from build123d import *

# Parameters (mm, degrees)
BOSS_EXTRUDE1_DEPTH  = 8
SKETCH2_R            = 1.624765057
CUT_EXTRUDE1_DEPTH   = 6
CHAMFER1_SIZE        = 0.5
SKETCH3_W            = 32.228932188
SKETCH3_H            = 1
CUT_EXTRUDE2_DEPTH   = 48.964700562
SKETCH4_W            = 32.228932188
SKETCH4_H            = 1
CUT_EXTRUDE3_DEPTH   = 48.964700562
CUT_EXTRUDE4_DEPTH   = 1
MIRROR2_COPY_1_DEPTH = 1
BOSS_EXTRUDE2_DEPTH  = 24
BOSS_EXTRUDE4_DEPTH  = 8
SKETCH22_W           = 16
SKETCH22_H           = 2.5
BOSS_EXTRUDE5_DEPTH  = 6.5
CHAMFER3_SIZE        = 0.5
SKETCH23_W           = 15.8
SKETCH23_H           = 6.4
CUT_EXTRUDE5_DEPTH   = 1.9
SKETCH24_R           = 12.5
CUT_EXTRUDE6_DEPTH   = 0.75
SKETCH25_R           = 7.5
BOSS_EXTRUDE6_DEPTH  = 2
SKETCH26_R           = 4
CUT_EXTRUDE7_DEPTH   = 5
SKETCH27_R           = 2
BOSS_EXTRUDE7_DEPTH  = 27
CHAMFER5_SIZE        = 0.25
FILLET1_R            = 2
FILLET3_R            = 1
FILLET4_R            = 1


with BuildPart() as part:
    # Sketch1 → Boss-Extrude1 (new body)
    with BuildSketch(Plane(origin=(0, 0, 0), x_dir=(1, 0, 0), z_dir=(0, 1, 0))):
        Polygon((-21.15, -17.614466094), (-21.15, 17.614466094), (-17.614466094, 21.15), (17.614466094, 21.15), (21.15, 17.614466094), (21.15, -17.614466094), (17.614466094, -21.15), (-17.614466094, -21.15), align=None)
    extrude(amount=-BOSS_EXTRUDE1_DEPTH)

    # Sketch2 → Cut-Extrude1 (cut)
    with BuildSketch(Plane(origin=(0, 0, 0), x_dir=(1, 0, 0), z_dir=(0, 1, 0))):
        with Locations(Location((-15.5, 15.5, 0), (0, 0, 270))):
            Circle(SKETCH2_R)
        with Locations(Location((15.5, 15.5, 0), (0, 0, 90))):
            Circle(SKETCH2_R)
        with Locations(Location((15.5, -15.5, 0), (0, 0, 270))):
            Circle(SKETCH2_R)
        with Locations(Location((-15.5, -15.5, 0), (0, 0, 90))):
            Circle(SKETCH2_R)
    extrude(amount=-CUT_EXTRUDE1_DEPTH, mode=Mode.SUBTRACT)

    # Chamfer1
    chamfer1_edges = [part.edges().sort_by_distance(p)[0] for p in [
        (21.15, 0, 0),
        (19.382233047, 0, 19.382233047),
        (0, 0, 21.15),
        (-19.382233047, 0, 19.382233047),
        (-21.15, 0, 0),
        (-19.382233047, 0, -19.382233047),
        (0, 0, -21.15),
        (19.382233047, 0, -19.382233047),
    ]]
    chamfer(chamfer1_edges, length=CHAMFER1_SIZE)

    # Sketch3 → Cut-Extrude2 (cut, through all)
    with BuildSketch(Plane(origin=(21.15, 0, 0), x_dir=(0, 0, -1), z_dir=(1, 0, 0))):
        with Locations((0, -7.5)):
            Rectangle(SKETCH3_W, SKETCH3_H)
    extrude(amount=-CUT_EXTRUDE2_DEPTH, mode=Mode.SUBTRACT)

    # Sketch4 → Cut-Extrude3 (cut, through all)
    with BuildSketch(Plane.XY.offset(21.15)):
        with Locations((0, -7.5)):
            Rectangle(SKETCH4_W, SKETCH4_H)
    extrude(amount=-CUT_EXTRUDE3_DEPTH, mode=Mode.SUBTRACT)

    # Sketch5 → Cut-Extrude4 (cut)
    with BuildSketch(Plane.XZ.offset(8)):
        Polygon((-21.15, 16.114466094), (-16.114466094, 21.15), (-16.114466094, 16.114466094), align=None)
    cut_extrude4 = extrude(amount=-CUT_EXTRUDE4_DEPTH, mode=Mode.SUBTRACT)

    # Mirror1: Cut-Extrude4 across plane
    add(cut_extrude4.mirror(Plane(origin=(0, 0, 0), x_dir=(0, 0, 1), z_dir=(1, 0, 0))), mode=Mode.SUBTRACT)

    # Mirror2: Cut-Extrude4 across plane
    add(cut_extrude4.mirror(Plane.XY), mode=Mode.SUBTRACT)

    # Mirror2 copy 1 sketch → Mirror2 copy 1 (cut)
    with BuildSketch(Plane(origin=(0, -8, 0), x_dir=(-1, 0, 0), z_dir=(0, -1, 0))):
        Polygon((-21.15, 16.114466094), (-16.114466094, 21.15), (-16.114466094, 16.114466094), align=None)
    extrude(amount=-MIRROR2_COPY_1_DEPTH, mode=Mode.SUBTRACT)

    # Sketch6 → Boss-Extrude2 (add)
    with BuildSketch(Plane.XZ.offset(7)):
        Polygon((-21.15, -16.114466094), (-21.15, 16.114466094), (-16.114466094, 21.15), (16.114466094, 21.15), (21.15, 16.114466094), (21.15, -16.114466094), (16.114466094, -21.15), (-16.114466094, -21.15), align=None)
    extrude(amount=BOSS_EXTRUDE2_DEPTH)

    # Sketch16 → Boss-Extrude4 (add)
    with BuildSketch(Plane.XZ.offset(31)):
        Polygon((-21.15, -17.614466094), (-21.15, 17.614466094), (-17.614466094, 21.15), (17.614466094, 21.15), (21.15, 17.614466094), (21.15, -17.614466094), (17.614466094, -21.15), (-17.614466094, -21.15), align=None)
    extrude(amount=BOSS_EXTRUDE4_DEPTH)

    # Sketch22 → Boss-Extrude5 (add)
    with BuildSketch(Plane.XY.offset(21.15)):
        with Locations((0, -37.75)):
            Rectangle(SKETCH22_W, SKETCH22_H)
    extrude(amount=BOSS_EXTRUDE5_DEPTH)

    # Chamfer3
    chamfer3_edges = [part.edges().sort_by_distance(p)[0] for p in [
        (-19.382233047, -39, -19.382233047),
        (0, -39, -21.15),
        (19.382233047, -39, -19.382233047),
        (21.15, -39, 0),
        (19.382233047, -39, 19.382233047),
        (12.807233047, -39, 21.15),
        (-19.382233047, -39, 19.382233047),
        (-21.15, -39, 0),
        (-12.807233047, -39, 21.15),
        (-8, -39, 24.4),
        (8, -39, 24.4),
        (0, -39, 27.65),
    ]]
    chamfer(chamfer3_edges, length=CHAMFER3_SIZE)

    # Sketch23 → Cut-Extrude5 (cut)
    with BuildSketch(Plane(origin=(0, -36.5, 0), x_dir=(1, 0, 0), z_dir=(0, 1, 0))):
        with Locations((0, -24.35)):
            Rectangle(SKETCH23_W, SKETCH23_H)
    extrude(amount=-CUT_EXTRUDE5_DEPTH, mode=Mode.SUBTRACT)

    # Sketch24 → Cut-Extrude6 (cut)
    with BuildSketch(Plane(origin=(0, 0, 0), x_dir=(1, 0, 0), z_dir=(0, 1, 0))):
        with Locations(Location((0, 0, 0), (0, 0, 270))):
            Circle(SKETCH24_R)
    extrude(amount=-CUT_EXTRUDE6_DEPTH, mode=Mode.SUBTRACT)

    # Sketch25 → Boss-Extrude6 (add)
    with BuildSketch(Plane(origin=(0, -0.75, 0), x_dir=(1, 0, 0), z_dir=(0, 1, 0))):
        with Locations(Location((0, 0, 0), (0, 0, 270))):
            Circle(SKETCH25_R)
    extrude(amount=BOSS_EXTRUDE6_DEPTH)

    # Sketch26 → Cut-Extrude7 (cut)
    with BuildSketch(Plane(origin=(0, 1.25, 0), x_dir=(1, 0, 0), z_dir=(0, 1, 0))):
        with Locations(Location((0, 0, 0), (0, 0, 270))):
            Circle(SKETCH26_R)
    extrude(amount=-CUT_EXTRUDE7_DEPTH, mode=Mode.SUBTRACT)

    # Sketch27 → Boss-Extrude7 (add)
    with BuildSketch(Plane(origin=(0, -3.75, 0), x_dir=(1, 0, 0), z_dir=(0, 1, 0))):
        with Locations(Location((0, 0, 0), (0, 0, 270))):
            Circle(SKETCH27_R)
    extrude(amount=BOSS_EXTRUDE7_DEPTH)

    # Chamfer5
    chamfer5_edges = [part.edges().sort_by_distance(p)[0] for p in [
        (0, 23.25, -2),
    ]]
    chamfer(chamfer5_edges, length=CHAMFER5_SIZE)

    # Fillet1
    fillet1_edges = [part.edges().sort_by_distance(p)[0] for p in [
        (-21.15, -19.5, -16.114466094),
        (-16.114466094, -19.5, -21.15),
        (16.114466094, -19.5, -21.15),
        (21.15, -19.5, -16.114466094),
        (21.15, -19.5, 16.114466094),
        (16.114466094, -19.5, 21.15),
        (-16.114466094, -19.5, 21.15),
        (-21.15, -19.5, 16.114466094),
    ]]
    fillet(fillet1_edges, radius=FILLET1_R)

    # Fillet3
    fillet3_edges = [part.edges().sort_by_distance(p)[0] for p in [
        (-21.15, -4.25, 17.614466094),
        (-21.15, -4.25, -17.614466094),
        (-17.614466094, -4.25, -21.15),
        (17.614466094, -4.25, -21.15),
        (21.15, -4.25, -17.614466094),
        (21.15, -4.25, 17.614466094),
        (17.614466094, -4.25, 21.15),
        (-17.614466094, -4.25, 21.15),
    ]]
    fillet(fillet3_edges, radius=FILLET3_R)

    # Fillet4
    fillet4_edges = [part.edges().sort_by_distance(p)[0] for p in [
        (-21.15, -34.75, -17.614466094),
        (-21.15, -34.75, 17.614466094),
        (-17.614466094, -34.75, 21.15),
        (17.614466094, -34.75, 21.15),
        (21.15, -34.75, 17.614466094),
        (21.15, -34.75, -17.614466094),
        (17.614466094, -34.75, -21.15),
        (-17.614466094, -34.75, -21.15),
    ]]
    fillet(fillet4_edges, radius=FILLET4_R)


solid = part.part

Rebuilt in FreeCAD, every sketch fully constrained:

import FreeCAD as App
import Part
import Sketcher

V = App.Vector


def edges_at(feature, points):
    """Names of the edges that pass closest to the given points."""
    edges = feature.Shape.Edges
    near = lambda p: min(range(len(edges)), key=lambda i: edges[i].distToShape(Part.Vertex(*p))[0])
    return sorted({f"Edge{near(p) + 1}" for p in points})


def add_polygon(sketch, points):
    """Adds a closed chain of lines whose ends are joined by coincident constraints."""
    first, n = sketch.GeometryCount, len(points)
    for a, b in zip(points, points[1:] + points[:1]):
        sketch.addGeometry(Part.LineSegment(App.Vector(*a, 0), App.Vector(*b, 0)), False)
    for i in range(n):
        sketch.addConstraint(Sketcher.Constraint("Coincident", first + i, 2, first + (i + 1) % n, 1))

doc = App.newDocument("Part")
body = doc.addObject("PartDesign::Body", "Body")

sketch1 = body.newObject("Sketcher::SketchObject", "Sketch")
sketch1.AttachmentSupport = (doc.getObject("XZ_Plane"), [""])
sketch1.MapMode = "FlatFace"
add_polygon(sketch1, [(-21, -18), (-21, 18), (-18, 21), (18, 21), (21, 18), (21, -18), (18, -21), (-18, -21)])
sketch1.addConstraint([
    Sketcher.Constraint("Vertical", 0),
    Sketcher.Constraint("Horizontal", 2),
    Sketcher.Constraint("Vertical", 4),
    Sketcher.Constraint("Horizontal", 6),
    Sketcher.Constraint("Symmetric", 0, 2, 4, 2, -1, 1),
    Sketcher.Constraint("Symmetric", 1, 2, 5, 2, -1, 1),
    Sketcher.Constraint("Perpendicular", 1, 3),
    Sketcher.Constraint("Perpendicular", 5, 7),
    Sketcher.Constraint("Horizontal", 0, 2, 3, 2),
    Sketcher.Constraint("Horizontal", 4, 2, 7, 2),
    Sketcher.Constraint("Vertical", 2, 2, 5, 2),
    Sketcher.Constraint("Equal", 6, 0),
    Sketcher.Constraint("Distance", 1, 5.0),
    Sketcher.Constraint("DistanceX", 0, 2, 3, 2, 42.3),
])
pad1 = body.newObject("PartDesign::Pad", "Pad")
pad1.Profile = sketch1
pad1.Length = 8

sketch2 = body.newObject("Sketcher::SketchObject", "Sketch001")
sketch2.AttachmentSupport = (doc.getObject("XZ_Plane"), [""])
sketch2.MapMode = "FlatFace"
sketch2.addGeometry([
    Part.Circle(V(-15.5, -15.5, 0), V(0, 0, 1), 1.6),
    Part.Circle(V(15.5, -15.5, 0), V(0, 0, 1), 1.6),
    Part.Circle(V(15.5, 15.5, 0), V(0, 0, 1), 1.6),
    Part.Circle(V(-15.5, 15.5, 0), V(0, 0, 1), 1.6),
], False)
sketch2.addConstraint([
    Sketcher.Constraint("Equal", 0, 1),
    Sketcher.Constraint("Equal", 1, 2),
    Sketcher.Constraint("Equal", 2, 3),
    Sketcher.Constraint("Symmetric", 0, 3, 2, 3, -1, 1),
    Sketcher.Constraint("Symmetric", 1, 3, 3, 3, -1, 1),
    Sketcher.Constraint("Symmetric", 0, 3, 1, 3, -2),
    Sketcher.Constraint("DistanceX", 0, 3, 1, 3, 31.0),
    Sketcher.Constraint("DistanceY", 1, 3, 2, 3, 31.0),
    Sketcher.Constraint("Diameter", 0, 3.24953),
])
pocket1 = body.newObject("PartDesign::Pocket", "Pocket")
pocket1.Profile = sketch2
pocket1.Length = 6
pocket1.Reversed = True
doc.recompute()

chamfer = body.newObject("PartDesign::Chamfer", "Chamfer")
chamfer.Base = (pocket1, edges_at(pocket1, [
    (21.15, 0, 0),
    (19.382, 0, 19.382),
    (0, 0, 21.15),
    (-19.382, 0, 19.382),
    (-21.15, 0, 0),
    (-19.382, 0, -19.382),
    (0, 0, -21.15),
    (19.382, 0, -19.382),
]))
chamfer.Size = 0.5

sketch3 = body.newObject("Sketcher::SketchObject", "Sketch002")
sketch3.AttachmentSupport = (doc.getObject("YZ_Plane"), [""])
sketch3.MapMode = "FlatFace"
sketch3.AttachmentOffset = App.Placement(V(0, 0, 21.15), App.Rotation())
add_polygon(sketch3, [(-7, 16.1), (-8, 16.1), (-8, -16.1), (-7, -16.1)])
sketch3.addConstraint([
    Sketcher.Constraint("Horizontal", 0),
    Sketcher.Constraint("Vertical", 1),
    Sketcher.Constraint("Horizontal", 2),
    Sketcher.Constraint("Vertical", 3),
    Sketcher.Constraint("DistanceX", 0, 2, 0, 1, 1.0),
    Sketcher.Constraint("DistanceX", 0, 2, -1, 1, 8.0),
    Sketcher.Constraint("DistanceY", 1, 2, 1, 1, 32.228932),
    Sketcher.Constraint("DistanceY", -1, 1, 0, 2, 16.114466),
])
pocket2 = body.newObject("PartDesign::Pocket", "Pocket001")
pocket2.Profile = sketch3
pocket2.Type = "ThroughAll"

sketch4 = body.newObject("Sketcher::SketchObject", "Sketch003")
sketch4.AttachmentSupport = (doc.getObject("XY_Plane"), [""])
sketch4.MapMode = "FlatFace"
sketch4.AttachmentOffset = App.Placement(V(0, 0, 21.15), App.Rotation())
add_polygon(sketch4, [(-16.1, -7), (-16.1, -8), (16.1, -8), (16.1, -7)])
sketch4.addConstraint([
    Sketcher.Constraint("Vertical", 0),
    Sketcher.Constraint("Horizontal", 1),
    Sketcher.Constraint("Vertical", 2),
    Sketcher.Constraint("Horizontal", 3),
    Sketcher.Constraint("DistanceY", 0, 2, 0, 1, 1.0),
    Sketcher.Constraint("DistanceY", 0, 2, -1, 1, 8.0),
    Sketcher.Constraint("DistanceX", 1, 1, 1, 2, 32.228932),
    Sketcher.Constraint("DistanceX", 0, 2, -1, 1, 16.114466),
])
pocket3 = body.newObject("PartDesign::Pocket", "Pocket002")
pocket3.Profile = sketch4
pocket3.Type = "ThroughAll"

sketch5 = body.newObject("Sketcher::SketchObject", "Sketch004")
sketch5.AttachmentSupport = (doc.getObject("XZ_Plane"), [""])
sketch5.MapMode = "FlatFace"
sketch5.AttachmentOffset = App.Placement(V(0, 0, 8), App.Rotation())
add_polygon(sketch5, [(-16, 21), (-21, 16), (-16, 16)])
sketch5.addConstraint([
    Sketcher.Constraint("Horizontal", 1),
    Sketcher.Constraint("Vertical", 2),
    Sketcher.Constraint("Equal", 1, 2),
    Sketcher.Constraint("DistanceX", 0, 2, -1, 1, 21.15),
    Sketcher.Constraint("DistanceY", -1, 1, 2, 2, 21.15),
    Sketcher.Constraint("Distance", 0, 7.12132),
])
pocket4 = body.newObject("PartDesign::Pocket", "Pocket003")
pocket4.Profile = sketch5
pocket4.Length = 1
doc.recompute()

mirrored = body.newObject("PartDesign::Mirrored", "Mirrored")
mirrored.Originals = [pocket4]
mirrored.MirrorPlane = (doc.getObject("YZ_Plane"), [""])
body.Tip = mirrored
doc.recompute()

mirrored2 = body.newObject("PartDesign::Mirrored", "Mirrored001")
mirrored2.Originals = [pocket4]
mirrored2.MirrorPlane = (doc.getObject("XY_Plane"), [""])
body.Tip = mirrored2

sketch6 = body.newObject("Sketcher::SketchObject", "Sketch005")
sketch6.AttachmentSupport = (doc.getObject("XZ_Plane"), [""])
sketch6.MapMode = "FlatFace"
sketch6.AttachmentOffset = App.Placement(V(0, 0, 8), App.Rotation())
add_polygon(sketch6, [(16, -21), (21, -16), (16, -16)])
sketch6.addConstraint([
    Sketcher.Constraint("Horizontal", 1),
    Sketcher.Constraint("Vertical", 2),
    Sketcher.Constraint("Equal", 1, 2),
    Sketcher.Constraint("DistanceX", -1, 1, 0, 2, 21.15),
    Sketcher.Constraint("DistanceY", 2, 2, -1, 1, 21.15),
    Sketcher.Constraint("Distance", 0, 7.12132),
])
pocket5 = body.newObject("PartDesign::Pocket", "Pocket004")
pocket5.Profile = sketch6
pocket5.Length = 1

sketch7 = body.newObject("Sketcher::SketchObject", "Sketch006")
sketch7.AttachmentSupport = (doc.getObject("XZ_Plane"), [""])
sketch7.MapMode = "FlatFace"
sketch7.AttachmentOffset = App.Placement(V(0, 0, 7), App.Rotation())
add_polygon(sketch7, [(-21, 16), (-21, -16), (-16, -21), (16, -21), (21, -16), (21, 16), (16, 21), (-16, 21)])
sketch7.addConstraint([
    Sketcher.Constraint("Vertical", 0),
    Sketcher.Constraint("Horizontal", 2),
    Sketcher.Constraint("Vertical", 4),
    Sketcher.Constraint("Horizontal", 6),
    Sketcher.Constraint("Symmetric", 0, 2, 4, 2, -1, 1),
    Sketcher.Constraint("Symmetric", 1, 2, 5, 2, -1, 1),
    Sketcher.Constraint("Perpendicular", 1, 3),
    Sketcher.Constraint("Perpendicular", 5, 7),
    Sketcher.Constraint("Horizontal", 0, 2, 3, 2),
    Sketcher.Constraint("Horizontal", 4, 2, 7, 2),
    Sketcher.Constraint("Vertical", 2, 2, 5, 2),
    Sketcher.Constraint("Equal", 6, 0),
    Sketcher.Constraint("DistanceX", 0, 2, 3, 2, 42.3),
    Sketcher.Constraint("Distance", 1, 7.12132),
])
pad2 = body.newObject("PartDesign::Pad", "Pad001")
pad2.Profile = sketch7
pad2.Length = 24

sketch8 = body.newObject("Sketcher::SketchObject", "Sketch007")
sketch8.AttachmentSupport = (doc.getObject("XZ_Plane"), [""])
sketch8.MapMode = "FlatFace"
sketch8.AttachmentOffset = App.Placement(V(0, 0, 31), App.Rotation())
add_polygon(sketch8, [(-21, 18), (-21, -18), (-18, -21), (18, -21), (21, -18), (21, 18), (18, 21), (-18, 21)])
sketch8.addConstraint([
    Sketcher.Constraint("Vertical", 0),
    Sketcher.Constraint("Horizontal", 2),
    Sketcher.Constraint("Vertical", 4),
    Sketcher.Constraint("Horizontal", 6),
    Sketcher.Constraint("Symmetric", 0, 2, 4, 2, -1, 1),
    Sketcher.Constraint("Symmetric", 1, 2, 5, 2, -1, 1),
    Sketcher.Constraint("Perpendicular", 1, 3),
    Sketcher.Constraint("Perpendicular", 5, 7),
    Sketcher.Constraint("Horizontal", 0, 2, 3, 2),
    Sketcher.Constraint("Horizontal", 4, 2, 7, 2),
    Sketcher.Constraint("Vertical", 2, 2, 5, 2),
    Sketcher.Constraint("Equal", 6, 0),
    Sketcher.Constraint("Distance", 1, 5.0),
    Sketcher.Constraint("DistanceX", 0, 2, 3, 2, 42.3),
])
pad3 = body.newObject("PartDesign::Pad", "Pad002")
pad3.Profile = sketch8
pad3.Length = 8

sketch9 = body.newObject("Sketcher::SketchObject", "Sketch008")
sketch9.AttachmentSupport = (doc.getObject("XY_Plane"), [""])
sketch9.MapMode = "FlatFace"
sketch9.AttachmentOffset = App.Placement(V(0, 0, 21.15), App.Rotation())
add_polygon(sketch9, [(-8, -36.5), (-8, -39), (8, -39), (8, -36.5)])
sketch9.addConstraint([
    Sketcher.Constraint("Vertical", 0),
    Sketcher.Constraint("Horizontal", 1),
    Sketcher.Constraint("Vertical", 2),
    Sketcher.Constraint("Horizontal", 3),
    Sketcher.Constraint("DistanceX", 1, 1, 1, 2, 16.0),
    Sketcher.Constraint("DistanceY", 0, 2, 0, 1, 2.5),
    Sketcher.Constraint("DistanceX", 0, 2, -1, 1, 8.0),
    Sketcher.Constraint("DistanceY", 0, 2, -1, 1, 39.0),
])
pad4 = body.newObject("PartDesign::Pad", "Pad003")
pad4.Profile = sketch9
pad4.Length = 6.5
doc.recompute()

chamfer2 = body.newObject("PartDesign::Chamfer", "Chamfer001")
chamfer2.Base = (pad4, edges_at(pad4, [
    (-19.382, -39, -19.382),
    (0, -39, -21.15),
    (19.382, -39, -19.382),
    (21.15, -39, 0),
    (19.382, -39, 19.382),
    (12.807, -39, 21.15),
    (-19.382, -39, 19.382),
    (-21.15, -39, 0),
    (-12.807, -39, 21.15),
    (-8, -39, 24.4),
    (8, -39, 24.4),
    (0, -39, 27.65),
]))
chamfer2.Size = 0.5

sketch10 = body.newObject("Sketcher::SketchObject", "Sketch009")
sketch10.AttachmentSupport = (doc.getObject("XZ_Plane"), [""])
sketch10.MapMode = "FlatFace"
sketch10.AttachmentOffset = App.Placement(V(0, 0, 36.5), App.Rotation())
add_polygon(sketch10, [(-8, 21), (-8, 28), (8, 28), (8, 21)])
sketch10.addConstraint([
    Sketcher.Constraint("Vertical", 0),
    Sketcher.Constraint("Horizontal", 1),
    Sketcher.Constraint("Vertical", 2),
    Sketcher.Constraint("Horizontal", 3),
    Sketcher.Constraint("DistanceX", 1, 1, 1, 2, 15.8),
    Sketcher.Constraint("DistanceY", 0, 1, 0, 2, 6.4),
    Sketcher.Constraint("DistanceX", 0, 2, -1, 1, 7.9),
    Sketcher.Constraint("DistanceY", -1, 1, 0, 2, 27.55),
])
pocket6 = body.newObject("PartDesign::Pocket", "Pocket005")
pocket6.Profile = sketch10
pocket6.Length = 1.9
pocket6.Reversed = True

sketch11 = body.newObject("Sketcher::SketchObject", "Sketch010")
sketch11.AttachmentSupport = (doc.getObject("XZ_Plane"), [""])
sketch11.MapMode = "FlatFace"
sketch11.addGeometry(Part.Circle(V(0, 0, 0), V(0, 0, 1), 12), False)
sketch11.addConstraint([
    Sketcher.Constraint("Coincident", 0, 3, -1, 1),
    Sketcher.Constraint("Diameter", 0, 25.0),
])
pocket7 = body.newObject("PartDesign::Pocket", "Pocket006")
pocket7.Profile = sketch11
pocket7.Length = 0.75
pocket7.Reversed = True

sketch12 = body.newObject("Sketcher::SketchObject", "Sketch011")
sketch12.AttachmentSupport = (doc.getObject("XZ_Plane"), [""])
sketch12.MapMode = "FlatFace"
sketch12.AttachmentOffset = App.Placement(V(0, 0, 0.75), App.Rotation())
sketch12.addGeometry(Part.Circle(V(0, 0, 0), V(0, 0, 1), 8), False)
sketch12.addConstraint([
    Sketcher.Constraint("Coincident", 0, 3, -1, 1),
    Sketcher.Constraint("Diameter", 0, 15.0),
])
pad5 = body.newObject("PartDesign::Pad", "Pad004")
pad5.Profile = sketch12
pad5.Length = 2
pad5.Reversed = True

sketch13 = body.newObject("Sketcher::SketchObject", "Sketch012")
sketch13.AttachmentSupport = (doc.getObject("XZ_Plane"), [""])
sketch13.MapMode = "FlatFace"
sketch13.AttachmentOffset = App.Placement(V(0, 0, -1.25), App.Rotation())
sketch13.addGeometry(Part.Circle(V(0, 0, 0), V(0, 0, 1), 4), False)
sketch13.addConstraint([
    Sketcher.Constraint("Coincident", 0, 3, -1, 1),
    Sketcher.Constraint("Diameter", 0, 8.0),
])
pocket8 = body.newObject("PartDesign::Pocket", "Pocket007")
pocket8.Profile = sketch13
pocket8.Length = 5
pocket8.Reversed = True

sketch14 = body.newObject("Sketcher::SketchObject", "Sketch013")
sketch14.AttachmentSupport = (doc.getObject("XZ_Plane"), [""])
sketch14.MapMode = "FlatFace"
sketch14.AttachmentOffset = App.Placement(V(0, 0, 3.75), App.Rotation())
sketch14.addGeometry(Part.Circle(V(0, 0, 0), V(0, 0, 1), 2), False)
sketch14.addConstraint([
    Sketcher.Constraint("Coincident", 0, 3, -1, 1),
    Sketcher.Constraint("Diameter", 0, 4.0),
])
pad6 = body.newObject("PartDesign::Pad", "Pad005")
pad6.Profile = sketch14
pad6.Length = 27
pad6.Reversed = True
doc.recompute()

chamfer3 = body.newObject("PartDesign::Chamfer", "Chamfer002")
chamfer3.Base = (pad6, edges_at(pad6, [(0, 23.25, -2)]))
chamfer3.Size = 0.25
doc.recompute()

fillet = body.newObject("PartDesign::Fillet", "Fillet")
fillet.Base = (chamfer3, edges_at(chamfer3, [
    (-21.15, -19.5, -16.114),
    (-16.114, -19.5, -21.15),
    (16.114, -19.5, -21.15),
    (21.15, -19.5, -16.114),
    (21.15, -19.5, 16.114),
    (16.114, -19.5, 21.15),
    (-16.114, -19.5, 21.15),
    (-21.15, -19.5, 16.114),
]))
fillet.Radius = 2
doc.recompute()

fillet2 = body.newObject("PartDesign::Fillet", "Fillet001")
fillet2.Base = (fillet, edges_at(fillet, [
    (-21.15, -4.25, 17.614),
    (-21.15, -4.25, -17.614),
    (-17.614, -4.25, -21.15),
    (17.614, -4.25, -21.15),
    (21.15, -4.25, -17.614),
    (21.15, -4.25, 17.614),
    (17.614, -4.25, 21.15),
    (-17.614, -4.25, 21.15),
]))
fillet2.Radius = 1
doc.recompute()

fillet3 = body.newObject("PartDesign::Fillet", "Fillet002")
fillet3.Base = (fillet2, edges_at(fillet2, [
    (-21.15, -34.75, -17.614),
    (-21.15, -34.75, 17.614),
    (-17.614, -34.75, 21.15),
    (17.614, -34.75, 21.15),
    (21.15, -34.75, 17.614),
    (21.15, -34.75, -17.614),
    (17.614, -34.75, -21.15),
    (-17.614, -34.75, -21.15),
]))
fillet3.Radius = 1

doc.recompute()
